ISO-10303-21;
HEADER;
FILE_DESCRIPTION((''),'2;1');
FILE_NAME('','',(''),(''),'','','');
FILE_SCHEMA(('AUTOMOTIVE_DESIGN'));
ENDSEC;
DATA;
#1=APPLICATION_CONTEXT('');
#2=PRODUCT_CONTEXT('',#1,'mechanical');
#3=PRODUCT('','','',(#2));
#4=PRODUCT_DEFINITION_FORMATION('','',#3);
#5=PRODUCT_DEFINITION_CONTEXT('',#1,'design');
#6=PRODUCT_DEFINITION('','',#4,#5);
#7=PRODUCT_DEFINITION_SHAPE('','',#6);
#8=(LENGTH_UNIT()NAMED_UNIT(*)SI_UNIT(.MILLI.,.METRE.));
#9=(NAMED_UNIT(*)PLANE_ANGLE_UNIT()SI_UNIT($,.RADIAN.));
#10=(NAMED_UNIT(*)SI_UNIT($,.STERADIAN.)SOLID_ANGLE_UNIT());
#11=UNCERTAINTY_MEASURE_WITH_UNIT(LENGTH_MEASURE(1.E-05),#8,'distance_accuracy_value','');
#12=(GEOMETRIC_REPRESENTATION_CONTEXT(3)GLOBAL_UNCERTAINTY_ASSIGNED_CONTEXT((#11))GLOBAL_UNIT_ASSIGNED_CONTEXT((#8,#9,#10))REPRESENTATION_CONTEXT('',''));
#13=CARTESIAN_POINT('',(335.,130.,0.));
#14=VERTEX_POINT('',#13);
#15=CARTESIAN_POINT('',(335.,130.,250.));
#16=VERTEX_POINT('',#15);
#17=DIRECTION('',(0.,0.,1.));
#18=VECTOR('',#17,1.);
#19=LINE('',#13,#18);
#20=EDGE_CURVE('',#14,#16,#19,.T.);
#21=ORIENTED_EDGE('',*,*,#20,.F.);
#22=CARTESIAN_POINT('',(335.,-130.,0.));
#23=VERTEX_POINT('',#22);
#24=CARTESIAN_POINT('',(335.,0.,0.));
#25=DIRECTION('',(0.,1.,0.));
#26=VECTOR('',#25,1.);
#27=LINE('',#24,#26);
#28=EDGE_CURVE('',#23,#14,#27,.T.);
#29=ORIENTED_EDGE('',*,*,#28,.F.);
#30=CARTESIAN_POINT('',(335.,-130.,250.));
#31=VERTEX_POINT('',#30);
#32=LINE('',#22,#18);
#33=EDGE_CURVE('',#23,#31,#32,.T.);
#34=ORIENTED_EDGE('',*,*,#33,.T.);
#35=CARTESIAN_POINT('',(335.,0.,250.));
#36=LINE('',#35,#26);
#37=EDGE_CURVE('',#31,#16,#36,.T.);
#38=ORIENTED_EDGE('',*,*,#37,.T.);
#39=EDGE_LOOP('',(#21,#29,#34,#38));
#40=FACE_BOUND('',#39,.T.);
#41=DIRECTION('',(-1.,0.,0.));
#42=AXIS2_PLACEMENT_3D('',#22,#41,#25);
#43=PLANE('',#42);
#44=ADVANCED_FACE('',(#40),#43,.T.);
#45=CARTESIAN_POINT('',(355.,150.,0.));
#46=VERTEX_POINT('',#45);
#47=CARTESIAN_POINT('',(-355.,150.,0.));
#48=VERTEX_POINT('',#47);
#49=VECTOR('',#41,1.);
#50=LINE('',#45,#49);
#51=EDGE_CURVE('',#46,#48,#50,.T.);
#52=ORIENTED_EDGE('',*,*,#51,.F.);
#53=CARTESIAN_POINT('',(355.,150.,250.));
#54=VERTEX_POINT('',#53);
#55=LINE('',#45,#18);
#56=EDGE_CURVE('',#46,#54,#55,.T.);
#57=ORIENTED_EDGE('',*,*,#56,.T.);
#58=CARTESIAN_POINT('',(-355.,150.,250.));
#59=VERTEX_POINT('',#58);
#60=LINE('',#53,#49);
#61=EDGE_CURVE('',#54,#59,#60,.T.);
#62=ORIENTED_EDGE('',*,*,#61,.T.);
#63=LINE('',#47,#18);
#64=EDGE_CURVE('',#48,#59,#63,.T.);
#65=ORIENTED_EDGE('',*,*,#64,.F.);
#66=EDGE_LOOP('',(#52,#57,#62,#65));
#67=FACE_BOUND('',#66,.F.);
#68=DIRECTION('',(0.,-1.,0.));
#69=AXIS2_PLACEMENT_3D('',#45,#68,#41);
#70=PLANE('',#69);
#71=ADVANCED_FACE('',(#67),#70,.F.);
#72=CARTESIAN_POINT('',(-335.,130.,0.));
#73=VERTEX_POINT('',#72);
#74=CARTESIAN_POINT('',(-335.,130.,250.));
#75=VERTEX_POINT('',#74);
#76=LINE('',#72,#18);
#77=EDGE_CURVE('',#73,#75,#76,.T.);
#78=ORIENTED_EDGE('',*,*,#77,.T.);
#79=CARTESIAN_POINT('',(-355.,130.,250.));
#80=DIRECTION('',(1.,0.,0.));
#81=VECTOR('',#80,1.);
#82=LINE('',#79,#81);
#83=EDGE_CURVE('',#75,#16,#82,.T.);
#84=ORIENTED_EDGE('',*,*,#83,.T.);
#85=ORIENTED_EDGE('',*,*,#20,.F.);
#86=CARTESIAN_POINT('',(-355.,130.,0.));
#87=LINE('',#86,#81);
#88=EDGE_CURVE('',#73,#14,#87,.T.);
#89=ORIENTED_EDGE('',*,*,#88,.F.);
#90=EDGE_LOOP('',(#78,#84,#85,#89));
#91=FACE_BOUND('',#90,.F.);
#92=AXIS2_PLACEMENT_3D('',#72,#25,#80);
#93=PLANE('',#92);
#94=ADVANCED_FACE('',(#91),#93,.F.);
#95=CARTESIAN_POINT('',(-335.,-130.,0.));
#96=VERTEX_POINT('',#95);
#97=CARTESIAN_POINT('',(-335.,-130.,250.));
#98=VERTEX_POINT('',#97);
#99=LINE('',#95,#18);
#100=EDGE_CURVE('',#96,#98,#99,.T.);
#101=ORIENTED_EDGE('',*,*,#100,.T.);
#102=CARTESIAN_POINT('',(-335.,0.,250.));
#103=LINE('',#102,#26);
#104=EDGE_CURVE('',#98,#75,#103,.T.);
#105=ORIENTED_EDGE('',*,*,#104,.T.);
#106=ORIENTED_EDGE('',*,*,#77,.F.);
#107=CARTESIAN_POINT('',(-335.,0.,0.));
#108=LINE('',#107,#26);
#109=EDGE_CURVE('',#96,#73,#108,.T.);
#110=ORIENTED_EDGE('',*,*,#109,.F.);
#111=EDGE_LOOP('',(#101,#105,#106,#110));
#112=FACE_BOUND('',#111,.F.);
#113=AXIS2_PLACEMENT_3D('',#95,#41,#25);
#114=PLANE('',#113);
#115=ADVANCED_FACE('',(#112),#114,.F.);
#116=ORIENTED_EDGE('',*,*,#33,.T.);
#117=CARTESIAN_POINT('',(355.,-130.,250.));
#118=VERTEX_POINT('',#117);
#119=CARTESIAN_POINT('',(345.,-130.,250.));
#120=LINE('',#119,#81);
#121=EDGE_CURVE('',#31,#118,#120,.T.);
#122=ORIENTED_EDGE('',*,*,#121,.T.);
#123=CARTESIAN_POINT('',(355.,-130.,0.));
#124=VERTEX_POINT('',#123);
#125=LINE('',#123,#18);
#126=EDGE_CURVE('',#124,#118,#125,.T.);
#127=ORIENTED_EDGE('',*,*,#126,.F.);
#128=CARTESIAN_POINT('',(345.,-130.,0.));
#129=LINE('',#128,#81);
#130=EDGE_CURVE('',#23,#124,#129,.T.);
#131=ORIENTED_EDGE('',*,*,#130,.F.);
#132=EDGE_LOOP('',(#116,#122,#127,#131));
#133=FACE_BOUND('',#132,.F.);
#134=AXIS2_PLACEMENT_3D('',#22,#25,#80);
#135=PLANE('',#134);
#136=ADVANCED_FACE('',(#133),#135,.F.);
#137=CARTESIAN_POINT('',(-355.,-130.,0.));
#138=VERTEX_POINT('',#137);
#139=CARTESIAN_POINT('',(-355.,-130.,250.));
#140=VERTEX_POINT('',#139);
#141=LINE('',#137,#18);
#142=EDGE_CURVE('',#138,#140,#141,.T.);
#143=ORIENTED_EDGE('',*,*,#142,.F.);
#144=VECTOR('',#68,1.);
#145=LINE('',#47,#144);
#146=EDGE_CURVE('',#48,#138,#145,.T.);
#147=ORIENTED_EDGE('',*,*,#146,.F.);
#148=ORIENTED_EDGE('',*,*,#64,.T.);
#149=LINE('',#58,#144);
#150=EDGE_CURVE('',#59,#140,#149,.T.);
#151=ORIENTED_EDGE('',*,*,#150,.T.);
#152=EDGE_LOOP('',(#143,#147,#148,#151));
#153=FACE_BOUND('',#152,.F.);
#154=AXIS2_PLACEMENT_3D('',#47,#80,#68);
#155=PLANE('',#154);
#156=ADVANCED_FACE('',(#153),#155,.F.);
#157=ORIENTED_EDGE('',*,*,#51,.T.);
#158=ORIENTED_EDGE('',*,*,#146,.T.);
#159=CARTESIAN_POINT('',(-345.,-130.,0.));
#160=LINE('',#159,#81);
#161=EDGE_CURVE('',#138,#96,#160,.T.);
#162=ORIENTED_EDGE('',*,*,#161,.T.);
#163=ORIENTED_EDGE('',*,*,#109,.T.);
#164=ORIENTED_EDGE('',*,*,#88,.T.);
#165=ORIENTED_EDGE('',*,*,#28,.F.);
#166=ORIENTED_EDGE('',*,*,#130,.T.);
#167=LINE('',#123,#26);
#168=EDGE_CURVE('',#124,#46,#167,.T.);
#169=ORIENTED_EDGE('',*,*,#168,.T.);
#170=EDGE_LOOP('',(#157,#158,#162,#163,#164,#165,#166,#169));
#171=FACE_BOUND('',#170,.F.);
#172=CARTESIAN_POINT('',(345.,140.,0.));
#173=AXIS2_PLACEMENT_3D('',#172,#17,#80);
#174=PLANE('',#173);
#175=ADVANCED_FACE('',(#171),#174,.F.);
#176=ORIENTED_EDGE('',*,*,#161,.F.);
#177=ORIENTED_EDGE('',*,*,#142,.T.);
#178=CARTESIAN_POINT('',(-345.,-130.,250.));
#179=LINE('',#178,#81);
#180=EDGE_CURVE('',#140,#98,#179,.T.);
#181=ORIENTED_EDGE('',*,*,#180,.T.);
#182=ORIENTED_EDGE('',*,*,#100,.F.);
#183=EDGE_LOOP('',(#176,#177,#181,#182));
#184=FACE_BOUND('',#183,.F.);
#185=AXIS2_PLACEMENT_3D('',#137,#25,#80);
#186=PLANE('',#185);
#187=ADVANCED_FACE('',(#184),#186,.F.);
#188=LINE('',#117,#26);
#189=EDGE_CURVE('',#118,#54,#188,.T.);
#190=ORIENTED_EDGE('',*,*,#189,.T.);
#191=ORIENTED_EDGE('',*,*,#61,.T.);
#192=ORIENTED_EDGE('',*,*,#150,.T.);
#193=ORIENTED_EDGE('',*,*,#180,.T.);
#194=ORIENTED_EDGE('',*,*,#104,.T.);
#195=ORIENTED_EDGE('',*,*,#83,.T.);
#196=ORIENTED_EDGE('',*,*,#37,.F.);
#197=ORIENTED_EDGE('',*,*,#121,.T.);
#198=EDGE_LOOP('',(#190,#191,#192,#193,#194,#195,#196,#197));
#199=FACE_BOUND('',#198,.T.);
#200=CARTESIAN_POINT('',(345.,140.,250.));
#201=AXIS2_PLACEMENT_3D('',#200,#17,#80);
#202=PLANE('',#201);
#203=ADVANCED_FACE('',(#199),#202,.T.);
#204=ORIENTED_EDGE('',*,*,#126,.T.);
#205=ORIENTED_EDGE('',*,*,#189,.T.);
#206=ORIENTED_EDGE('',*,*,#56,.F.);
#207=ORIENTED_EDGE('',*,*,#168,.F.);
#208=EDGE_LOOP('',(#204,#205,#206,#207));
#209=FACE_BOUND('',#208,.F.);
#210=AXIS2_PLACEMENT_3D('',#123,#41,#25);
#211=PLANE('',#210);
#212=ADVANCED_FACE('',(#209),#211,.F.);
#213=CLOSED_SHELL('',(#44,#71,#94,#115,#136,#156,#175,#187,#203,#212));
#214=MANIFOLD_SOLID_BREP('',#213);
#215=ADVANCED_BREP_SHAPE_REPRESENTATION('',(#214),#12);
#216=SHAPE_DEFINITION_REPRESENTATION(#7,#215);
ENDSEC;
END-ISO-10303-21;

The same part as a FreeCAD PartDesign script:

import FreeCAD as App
import Part
import Sketcher
from FreeCAD import Vector

doc = App.newDocument("Part")
params = doc.addObject("Spreadsheet::Sheet", "Params")
for row, (alias, value) in enumerate([
    ("sketch1_width", "710 mm"),
    ("sketch1_width2", "20 mm"),
    ("sketch1_height", "280 mm"),
    ("sketch1_height2", "260 mm"),
    ("pad1_length", "250 mm"),
], start=1):
    params.set(f"A{row}", alias)
    params.set(f"B{row}", "=" + value)
    params.setAlias(f"B{row}", alias)

body = doc.addObject("PartDesign::Body", "Body")

# Sketch on XY plane
sketch1 = body.newObject("Sketcher::SketchObject", "Sketch")
sketch1.AttachmentSupport = (doc.getObject("XY_Plane"), [""])
sketch1.MapMode = "FlatFace"
sketch1.addGeometry([
    Part.LineSegment(Vector(355, 150, 0), Vector(-355, 150, 0)),  # 0
    Part.LineSegment(Vector(-355, 150, 0), Vector(-355, -130, 0)),  # 1
    Part.LineSegment(Vector(-355, -130, 0), Vector(-335, -130, 0)),  # 2
    Part.LineSegment(Vector(-335, -130, 0), Vector(-335, 130, 0)),  # 3
    Part.LineSegment(Vector(-335, 130, 0), Vector(335, 130, 0)),  # 4
    Part.LineSegment(Vector(335, 130, 0), Vector(335, -130, 0)),  # 5
    Part.LineSegment(Vector(335, -130, 0), Vector(355, -130, 0)),  # 6
    Part.LineSegment(Vector(355, -130, 0), Vector(355, 150, 0)),  # 7
], False)
sketch1.addConstraint([
    Sketcher.Constraint("Coincident", 0, 2, 1, 1),
    Sketcher.Constraint("Coincident", 1, 2, 2, 1),
    Sketcher.Constraint("Coincident", 2, 2, 3, 1),
    Sketcher.Constraint("Coincident", 3, 2, 4, 1),
    Sketcher.Constraint("Coincident", 4, 2, 5, 1),
    Sketcher.Constraint("Coincident", 5, 2, 6, 1),
    Sketcher.Constraint("Coincident", 6, 2, 7, 1),
    Sketcher.Constraint("Coincident", 7, 2, 0, 1),
    Sketcher.Constraint("Horizontal", 0),
    Sketcher.Constraint("Vertical", 1),
    Sketcher.Constraint("Horizontal", 2),
    Sketcher.Constraint("Vertical", 3),
    Sketcher.Constraint("Horizontal", 4),
    Sketcher.Constraint("Vertical", 5),
    Sketcher.Constraint("Horizontal", 6),
    Sketcher.Constraint("Vertical", 7),
    Sketcher.Constraint("Symmetric", 2, 2, 4, 2, -1, 1),
    Sketcher.Constraint("Symmetric", 1, 2, 6, 2, -2),
    Sketcher.Constraint("DistanceX", 0, 2, 0, 1, 710.0),
    Sketcher.Constraint("DistanceX", 2, 1, 2, 2, 20.0),
    Sketcher.Constraint("DistanceY", 1, 2, 1, 1, 280.0),
    Sketcher.Constraint("DistanceY", 3, 1, 3, 2, 260.0),
])
sketch1.setExpression("Constraints[18]", "Params.sketch1_width")
sketch1.setExpression("Constraints[19]", "Params.sketch1_width2")
sketch1.setExpression("Constraints[20]", "Params.sketch1_height")
sketch1.setExpression("Constraints[21]", "Params.sketch1_height2")
pad1 = body.newObject("PartDesign::Pad", "Pad")
pad1.Profile = sketch1
pad1.setExpression("Length", "Params.pad1_length")

doc.recompute()
